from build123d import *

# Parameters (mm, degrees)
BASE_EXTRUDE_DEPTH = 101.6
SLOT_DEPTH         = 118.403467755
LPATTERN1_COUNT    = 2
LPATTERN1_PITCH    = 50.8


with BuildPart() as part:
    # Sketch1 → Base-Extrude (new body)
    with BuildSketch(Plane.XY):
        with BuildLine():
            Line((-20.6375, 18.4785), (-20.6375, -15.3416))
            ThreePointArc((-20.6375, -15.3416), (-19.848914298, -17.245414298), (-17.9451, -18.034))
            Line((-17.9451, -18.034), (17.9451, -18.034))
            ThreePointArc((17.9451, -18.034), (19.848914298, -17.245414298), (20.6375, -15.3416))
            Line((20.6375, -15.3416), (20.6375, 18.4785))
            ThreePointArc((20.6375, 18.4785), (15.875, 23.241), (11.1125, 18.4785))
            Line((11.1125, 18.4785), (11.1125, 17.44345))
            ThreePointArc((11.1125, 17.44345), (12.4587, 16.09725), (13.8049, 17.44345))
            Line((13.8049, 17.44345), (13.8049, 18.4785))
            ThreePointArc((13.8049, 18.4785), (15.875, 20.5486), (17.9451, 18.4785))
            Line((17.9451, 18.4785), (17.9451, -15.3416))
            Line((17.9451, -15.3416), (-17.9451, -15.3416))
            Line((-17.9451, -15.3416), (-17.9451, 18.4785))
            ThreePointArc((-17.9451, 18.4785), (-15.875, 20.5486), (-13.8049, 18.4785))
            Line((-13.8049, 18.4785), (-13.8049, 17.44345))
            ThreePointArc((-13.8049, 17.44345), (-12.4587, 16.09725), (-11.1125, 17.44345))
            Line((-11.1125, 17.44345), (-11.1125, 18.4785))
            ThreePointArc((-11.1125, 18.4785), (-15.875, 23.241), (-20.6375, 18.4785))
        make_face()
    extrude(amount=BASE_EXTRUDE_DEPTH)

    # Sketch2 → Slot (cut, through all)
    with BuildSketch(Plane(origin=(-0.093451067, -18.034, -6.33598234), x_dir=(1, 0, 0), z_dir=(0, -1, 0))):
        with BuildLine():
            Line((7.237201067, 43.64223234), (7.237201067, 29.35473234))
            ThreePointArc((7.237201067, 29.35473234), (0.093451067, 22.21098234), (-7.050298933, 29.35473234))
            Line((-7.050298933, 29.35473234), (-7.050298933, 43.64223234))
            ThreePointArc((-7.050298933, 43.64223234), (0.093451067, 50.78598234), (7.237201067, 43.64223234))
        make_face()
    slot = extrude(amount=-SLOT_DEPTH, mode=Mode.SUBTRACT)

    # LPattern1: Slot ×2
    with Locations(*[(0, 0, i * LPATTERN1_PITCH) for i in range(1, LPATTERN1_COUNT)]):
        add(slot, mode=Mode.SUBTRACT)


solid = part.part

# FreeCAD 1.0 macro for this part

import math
import FreeCAD as App
import Part
import Sketcher

V = App.Vector
Q = App.Units.Quantity

doc = App.newDocument("Part")
body = doc.addObject("PartDesign::Body", "Body")

# Sketch on XY plane
sketch1 = body.newObject("Sketcher::SketchObject", "Sketch")
sketch1.AttachmentSupport = (doc.getObject("XY_Plane"), [""])
sketch1.MapMode = "FlatFace"
sketch1.addGeometry([
    Part.LineSegment(V(-20.6, 18.5, 0), V(-20.6, -15.3, 0)),  # 0
    Part.ArcOfCircle(Part.Circle(V(-17.9, -15.3, 0), V(0, 0, 1), 2.7), math.radians(180), math.radians(270)),  # 1
    Part.LineSegment(V(-17.9, -18, 0), V(17.9, -18, 0)),  # 2
    Part.ArcOfCircle(Part.Circle(V(17.9, -15.3, 0), V(0, 0, 1), 2.7), math.radians(-90), math.radians(0)),  # 3
    Part.LineSegment(V(20.6, -15.3, 0), V(20.6, 18.5, 0)),  # 4
    Part.ArcOfCircle(Part.Circle(V(15.9, 18.5, 0), V(0, 0, 1), 4.8), math.radians(0), math.radians(180)),  # 5
    Part.LineSegment(V(11.1, 18.5, 0), V(11.1, 17.4, 0)),  # 6
    Part.ArcOfCircle(Part.Circle(V(12.5, 17.4, 0), V(0, 0, 1), 1.3), math.radians(180), math.radians(360)),  # 7
    Part.LineSegment(V(13.8, 17.4, 0), V(13.8, 18.5, 0)),  # 8
    Part.ArcOfCircle(Part.Circle(V(15.9, 18.5, 0), V(0, 0, 1), 2.1), math.radians(0), math.radians(180)),  # 9
    Part.LineSegment(V(17.9, 18.5, 0), V(17.9, -15.3, 0)),  # 10
    Part.LineSegment(V(17.9, -15.3, 0), V(-17.9, -15.3, 0)),  # 11
    Part.LineSegment(V(-17.9, -15.3, 0), V(-17.9, 18.5, 0)),  # 12
    Part.ArcOfCircle(Part.Circle(V(-15.9, 18.5, 0), V(0, 0, 1), 2.1), math.radians(0), math.radians(180)),  # 13
    Part.LineSegment(V(-13.8, 18.5, 0), V(-13.8, 17.4, 0)),  # 14
    Part.ArcOfCircle(Part.Circle(V(-12.5, 17.4, 0), V(0, 0, 1), 1.3), math.radians(180), math.radians(360)),  # 15
    Part.LineSegment(V(-11.1, 17.4, 0), V(-11.1, 18.5, 0)),  # 16
    Part.ArcOfCircle(Part.Circle(V(-15.9, 18.5, 0), V(0, 0, 1), 4.8), math.radians(0), math.radians(180)),  # 17
], False)
sketch1.addConstraint([
    Sketcher.Constraint("Tangent", 0, 2, 1, 1),
    Sketcher.Constraint("Tangent", 1, 2, 2, 1),
    Sketcher.Constraint("Tangent", 2, 2, 3, 1),
    Sketcher.Constraint("Tangent", 3, 2, 4, 1),
    Sketcher.Constraint("Tangent", 4, 2, 5, 1),
    Sketcher.Constraint("Tangent", 5, 2, 6, 1),
    Sketcher.Constraint("Tangent", 6, 2, 7, 1),
    Sketcher.Constraint("Tangent", 7, 2, 8, 1),
    Sketcher.Constraint("Tangent", 8, 2, 9, 2),
    Sketcher.Constraint("Tangent", 9, 1, 10, 1),
    Sketcher.Constraint("Coincident", 10, 2, 11, 1),
    Sketcher.Constraint("Coincident", 11, 2, 12, 1),
    Sketcher.Constraint("Tangent", 12, 2, 13, 2),
    Sketcher.Constraint("Tangent", 13, 1, 14, 1),
    Sketcher.Constraint("Tangent", 14, 2, 15, 1),
    Sketcher.Constraint("Tangent", 15, 2, 16, 1),
    Sketcher.Constraint("Tangent", 16, 2, 17, 1),
    Sketcher.Constraint("Tangent", 17, 2, 0, 1),
    Sketcher.Constraint("Vertical", 0),
    Sketcher.Constraint("Horizontal", 2),
    Sketcher.Constraint("Vertical", 4),
    Sketcher.Constraint("Vertical", 6),
    Sketcher.Constraint("Vertical", 8),
    Sketcher.Constraint("Vertical", 10),
    Sketcher.Constraint("Horizontal", 11),
    Sketcher.Constraint("Vertical", 12),
    Sketcher.Constraint("Vertical", 14),
    Sketcher.Constraint("Vertical", 16),
    Sketcher.Constraint("Coincident", 9, 3, 5, 3),
    Sketcher.Constraint("Coincident", 17, 3, 13, 3),
    Sketcher.Constraint("Coincident", 10, 2, 3, 3),
    Sketcher.Constraint("Coincident", 11, 2, 1, 3),
    Sketcher.Constraint("Equal", 9, 13),
    Sketcher.Constraint("Symmetric", 5, 3, 13, 3, -2),
    Sketcher.Constraint("Horizontal", 7, 3, 15, 3),
    Sketcher.Constraint("Radius", 1, Q("0.106 in")),
    Sketcher.Constraint("Radius", 5, Q("0.1875 in")),
    Sketcher.Constraint("DistanceX", 2, 1, 2, 2, Q("1.413 in")),
    Sketcher.Constraint("DistanceY", 1, 2, -1, 1, Q("0.71 in")),
    Sketcher.Constraint("DistanceY", 0, 2, 0, 1, Q("1.3315 in")),
    Sketcher.Constraint("DistanceY", 6, 2, 6, 1, Q("1.03505 mm")),
])
pad1 = body.newObject("PartDesign::Pad", "Pad")
pad1.Profile = sketch1
pad1.Length = Q("4 in")

# Sketch on XZ plane
sketch2 = body.newObject("Sketcher::SketchObject", "Sketch001")
sketch2.AttachmentSupport = (doc.getObject("XZ_Plane"), [""])
sketch2.MapMode = "FlatFace"
sketch2.AttachmentOffset = App.Placement(V(0, 0, 0.71 * 25.4), App.Rotation())
sketch2.addGeometry([
    Part.LineSegment(V(7, 23, 0), V(7, 37, 0)),
    Part.ArcOfCircle(Part.Circle(V(0, 37, 0), V(0, 0, 1), 7), math.radians(0), math.radians(180)),
    Part.LineSegment(V(-7, 37, 0), V(-7, 23, 0)),
    Part.ArcOfCircle(Part.Circle(V(0, 23, 0), V(0, 0, 1), 7), math.radians(180), math.radians(360)),
], False)
sketch2.addConstraint([
    Sketcher.Constraint("Tangent", 0, 2, 1, 1),
    Sketcher.Constraint("Tangent", 1, 2, 2, 1),
    Sketcher.Constraint("Tangent", 2, 2, 3, 1),
    Sketcher.Constraint("Tangent", 3, 2, 0, 1),
    Sketcher.Constraint("Vertical", 0),
    Sketcher.Constraint("Vertical", 2),
    Sketcher.Constraint("PointOnObject", 1, 3, -2),
    Sketcher.Constraint("Radius", 1, Q("0.28125 in")),
    Sketcher.Constraint("DistanceY", 0, 1, 0, 2, Q("0.5625 in")),
    Sketcher.Constraint("DistanceY", -1, 1, 1, 3, Q("1.46875 in")),
])
pocket1 = body.newObject("PartDesign::Pocket", "Pocket")
pocket1.Profile = sketch2
pocket1.Type = "ThroughAll"
doc.recompute()

linearpattern = body.newObject("PartDesign::LinearPattern", "LinearPattern")
linearpattern.Originals = [pocket1]
linearpattern.Direction = (doc.getObject("Z_Axis"), [""])
linearpattern.Mode = "offset"
linearpattern.Offset = Q("2 in")
linearpattern.Occurrences = 2
body.Tip = linearpattern

doc.recompute()
